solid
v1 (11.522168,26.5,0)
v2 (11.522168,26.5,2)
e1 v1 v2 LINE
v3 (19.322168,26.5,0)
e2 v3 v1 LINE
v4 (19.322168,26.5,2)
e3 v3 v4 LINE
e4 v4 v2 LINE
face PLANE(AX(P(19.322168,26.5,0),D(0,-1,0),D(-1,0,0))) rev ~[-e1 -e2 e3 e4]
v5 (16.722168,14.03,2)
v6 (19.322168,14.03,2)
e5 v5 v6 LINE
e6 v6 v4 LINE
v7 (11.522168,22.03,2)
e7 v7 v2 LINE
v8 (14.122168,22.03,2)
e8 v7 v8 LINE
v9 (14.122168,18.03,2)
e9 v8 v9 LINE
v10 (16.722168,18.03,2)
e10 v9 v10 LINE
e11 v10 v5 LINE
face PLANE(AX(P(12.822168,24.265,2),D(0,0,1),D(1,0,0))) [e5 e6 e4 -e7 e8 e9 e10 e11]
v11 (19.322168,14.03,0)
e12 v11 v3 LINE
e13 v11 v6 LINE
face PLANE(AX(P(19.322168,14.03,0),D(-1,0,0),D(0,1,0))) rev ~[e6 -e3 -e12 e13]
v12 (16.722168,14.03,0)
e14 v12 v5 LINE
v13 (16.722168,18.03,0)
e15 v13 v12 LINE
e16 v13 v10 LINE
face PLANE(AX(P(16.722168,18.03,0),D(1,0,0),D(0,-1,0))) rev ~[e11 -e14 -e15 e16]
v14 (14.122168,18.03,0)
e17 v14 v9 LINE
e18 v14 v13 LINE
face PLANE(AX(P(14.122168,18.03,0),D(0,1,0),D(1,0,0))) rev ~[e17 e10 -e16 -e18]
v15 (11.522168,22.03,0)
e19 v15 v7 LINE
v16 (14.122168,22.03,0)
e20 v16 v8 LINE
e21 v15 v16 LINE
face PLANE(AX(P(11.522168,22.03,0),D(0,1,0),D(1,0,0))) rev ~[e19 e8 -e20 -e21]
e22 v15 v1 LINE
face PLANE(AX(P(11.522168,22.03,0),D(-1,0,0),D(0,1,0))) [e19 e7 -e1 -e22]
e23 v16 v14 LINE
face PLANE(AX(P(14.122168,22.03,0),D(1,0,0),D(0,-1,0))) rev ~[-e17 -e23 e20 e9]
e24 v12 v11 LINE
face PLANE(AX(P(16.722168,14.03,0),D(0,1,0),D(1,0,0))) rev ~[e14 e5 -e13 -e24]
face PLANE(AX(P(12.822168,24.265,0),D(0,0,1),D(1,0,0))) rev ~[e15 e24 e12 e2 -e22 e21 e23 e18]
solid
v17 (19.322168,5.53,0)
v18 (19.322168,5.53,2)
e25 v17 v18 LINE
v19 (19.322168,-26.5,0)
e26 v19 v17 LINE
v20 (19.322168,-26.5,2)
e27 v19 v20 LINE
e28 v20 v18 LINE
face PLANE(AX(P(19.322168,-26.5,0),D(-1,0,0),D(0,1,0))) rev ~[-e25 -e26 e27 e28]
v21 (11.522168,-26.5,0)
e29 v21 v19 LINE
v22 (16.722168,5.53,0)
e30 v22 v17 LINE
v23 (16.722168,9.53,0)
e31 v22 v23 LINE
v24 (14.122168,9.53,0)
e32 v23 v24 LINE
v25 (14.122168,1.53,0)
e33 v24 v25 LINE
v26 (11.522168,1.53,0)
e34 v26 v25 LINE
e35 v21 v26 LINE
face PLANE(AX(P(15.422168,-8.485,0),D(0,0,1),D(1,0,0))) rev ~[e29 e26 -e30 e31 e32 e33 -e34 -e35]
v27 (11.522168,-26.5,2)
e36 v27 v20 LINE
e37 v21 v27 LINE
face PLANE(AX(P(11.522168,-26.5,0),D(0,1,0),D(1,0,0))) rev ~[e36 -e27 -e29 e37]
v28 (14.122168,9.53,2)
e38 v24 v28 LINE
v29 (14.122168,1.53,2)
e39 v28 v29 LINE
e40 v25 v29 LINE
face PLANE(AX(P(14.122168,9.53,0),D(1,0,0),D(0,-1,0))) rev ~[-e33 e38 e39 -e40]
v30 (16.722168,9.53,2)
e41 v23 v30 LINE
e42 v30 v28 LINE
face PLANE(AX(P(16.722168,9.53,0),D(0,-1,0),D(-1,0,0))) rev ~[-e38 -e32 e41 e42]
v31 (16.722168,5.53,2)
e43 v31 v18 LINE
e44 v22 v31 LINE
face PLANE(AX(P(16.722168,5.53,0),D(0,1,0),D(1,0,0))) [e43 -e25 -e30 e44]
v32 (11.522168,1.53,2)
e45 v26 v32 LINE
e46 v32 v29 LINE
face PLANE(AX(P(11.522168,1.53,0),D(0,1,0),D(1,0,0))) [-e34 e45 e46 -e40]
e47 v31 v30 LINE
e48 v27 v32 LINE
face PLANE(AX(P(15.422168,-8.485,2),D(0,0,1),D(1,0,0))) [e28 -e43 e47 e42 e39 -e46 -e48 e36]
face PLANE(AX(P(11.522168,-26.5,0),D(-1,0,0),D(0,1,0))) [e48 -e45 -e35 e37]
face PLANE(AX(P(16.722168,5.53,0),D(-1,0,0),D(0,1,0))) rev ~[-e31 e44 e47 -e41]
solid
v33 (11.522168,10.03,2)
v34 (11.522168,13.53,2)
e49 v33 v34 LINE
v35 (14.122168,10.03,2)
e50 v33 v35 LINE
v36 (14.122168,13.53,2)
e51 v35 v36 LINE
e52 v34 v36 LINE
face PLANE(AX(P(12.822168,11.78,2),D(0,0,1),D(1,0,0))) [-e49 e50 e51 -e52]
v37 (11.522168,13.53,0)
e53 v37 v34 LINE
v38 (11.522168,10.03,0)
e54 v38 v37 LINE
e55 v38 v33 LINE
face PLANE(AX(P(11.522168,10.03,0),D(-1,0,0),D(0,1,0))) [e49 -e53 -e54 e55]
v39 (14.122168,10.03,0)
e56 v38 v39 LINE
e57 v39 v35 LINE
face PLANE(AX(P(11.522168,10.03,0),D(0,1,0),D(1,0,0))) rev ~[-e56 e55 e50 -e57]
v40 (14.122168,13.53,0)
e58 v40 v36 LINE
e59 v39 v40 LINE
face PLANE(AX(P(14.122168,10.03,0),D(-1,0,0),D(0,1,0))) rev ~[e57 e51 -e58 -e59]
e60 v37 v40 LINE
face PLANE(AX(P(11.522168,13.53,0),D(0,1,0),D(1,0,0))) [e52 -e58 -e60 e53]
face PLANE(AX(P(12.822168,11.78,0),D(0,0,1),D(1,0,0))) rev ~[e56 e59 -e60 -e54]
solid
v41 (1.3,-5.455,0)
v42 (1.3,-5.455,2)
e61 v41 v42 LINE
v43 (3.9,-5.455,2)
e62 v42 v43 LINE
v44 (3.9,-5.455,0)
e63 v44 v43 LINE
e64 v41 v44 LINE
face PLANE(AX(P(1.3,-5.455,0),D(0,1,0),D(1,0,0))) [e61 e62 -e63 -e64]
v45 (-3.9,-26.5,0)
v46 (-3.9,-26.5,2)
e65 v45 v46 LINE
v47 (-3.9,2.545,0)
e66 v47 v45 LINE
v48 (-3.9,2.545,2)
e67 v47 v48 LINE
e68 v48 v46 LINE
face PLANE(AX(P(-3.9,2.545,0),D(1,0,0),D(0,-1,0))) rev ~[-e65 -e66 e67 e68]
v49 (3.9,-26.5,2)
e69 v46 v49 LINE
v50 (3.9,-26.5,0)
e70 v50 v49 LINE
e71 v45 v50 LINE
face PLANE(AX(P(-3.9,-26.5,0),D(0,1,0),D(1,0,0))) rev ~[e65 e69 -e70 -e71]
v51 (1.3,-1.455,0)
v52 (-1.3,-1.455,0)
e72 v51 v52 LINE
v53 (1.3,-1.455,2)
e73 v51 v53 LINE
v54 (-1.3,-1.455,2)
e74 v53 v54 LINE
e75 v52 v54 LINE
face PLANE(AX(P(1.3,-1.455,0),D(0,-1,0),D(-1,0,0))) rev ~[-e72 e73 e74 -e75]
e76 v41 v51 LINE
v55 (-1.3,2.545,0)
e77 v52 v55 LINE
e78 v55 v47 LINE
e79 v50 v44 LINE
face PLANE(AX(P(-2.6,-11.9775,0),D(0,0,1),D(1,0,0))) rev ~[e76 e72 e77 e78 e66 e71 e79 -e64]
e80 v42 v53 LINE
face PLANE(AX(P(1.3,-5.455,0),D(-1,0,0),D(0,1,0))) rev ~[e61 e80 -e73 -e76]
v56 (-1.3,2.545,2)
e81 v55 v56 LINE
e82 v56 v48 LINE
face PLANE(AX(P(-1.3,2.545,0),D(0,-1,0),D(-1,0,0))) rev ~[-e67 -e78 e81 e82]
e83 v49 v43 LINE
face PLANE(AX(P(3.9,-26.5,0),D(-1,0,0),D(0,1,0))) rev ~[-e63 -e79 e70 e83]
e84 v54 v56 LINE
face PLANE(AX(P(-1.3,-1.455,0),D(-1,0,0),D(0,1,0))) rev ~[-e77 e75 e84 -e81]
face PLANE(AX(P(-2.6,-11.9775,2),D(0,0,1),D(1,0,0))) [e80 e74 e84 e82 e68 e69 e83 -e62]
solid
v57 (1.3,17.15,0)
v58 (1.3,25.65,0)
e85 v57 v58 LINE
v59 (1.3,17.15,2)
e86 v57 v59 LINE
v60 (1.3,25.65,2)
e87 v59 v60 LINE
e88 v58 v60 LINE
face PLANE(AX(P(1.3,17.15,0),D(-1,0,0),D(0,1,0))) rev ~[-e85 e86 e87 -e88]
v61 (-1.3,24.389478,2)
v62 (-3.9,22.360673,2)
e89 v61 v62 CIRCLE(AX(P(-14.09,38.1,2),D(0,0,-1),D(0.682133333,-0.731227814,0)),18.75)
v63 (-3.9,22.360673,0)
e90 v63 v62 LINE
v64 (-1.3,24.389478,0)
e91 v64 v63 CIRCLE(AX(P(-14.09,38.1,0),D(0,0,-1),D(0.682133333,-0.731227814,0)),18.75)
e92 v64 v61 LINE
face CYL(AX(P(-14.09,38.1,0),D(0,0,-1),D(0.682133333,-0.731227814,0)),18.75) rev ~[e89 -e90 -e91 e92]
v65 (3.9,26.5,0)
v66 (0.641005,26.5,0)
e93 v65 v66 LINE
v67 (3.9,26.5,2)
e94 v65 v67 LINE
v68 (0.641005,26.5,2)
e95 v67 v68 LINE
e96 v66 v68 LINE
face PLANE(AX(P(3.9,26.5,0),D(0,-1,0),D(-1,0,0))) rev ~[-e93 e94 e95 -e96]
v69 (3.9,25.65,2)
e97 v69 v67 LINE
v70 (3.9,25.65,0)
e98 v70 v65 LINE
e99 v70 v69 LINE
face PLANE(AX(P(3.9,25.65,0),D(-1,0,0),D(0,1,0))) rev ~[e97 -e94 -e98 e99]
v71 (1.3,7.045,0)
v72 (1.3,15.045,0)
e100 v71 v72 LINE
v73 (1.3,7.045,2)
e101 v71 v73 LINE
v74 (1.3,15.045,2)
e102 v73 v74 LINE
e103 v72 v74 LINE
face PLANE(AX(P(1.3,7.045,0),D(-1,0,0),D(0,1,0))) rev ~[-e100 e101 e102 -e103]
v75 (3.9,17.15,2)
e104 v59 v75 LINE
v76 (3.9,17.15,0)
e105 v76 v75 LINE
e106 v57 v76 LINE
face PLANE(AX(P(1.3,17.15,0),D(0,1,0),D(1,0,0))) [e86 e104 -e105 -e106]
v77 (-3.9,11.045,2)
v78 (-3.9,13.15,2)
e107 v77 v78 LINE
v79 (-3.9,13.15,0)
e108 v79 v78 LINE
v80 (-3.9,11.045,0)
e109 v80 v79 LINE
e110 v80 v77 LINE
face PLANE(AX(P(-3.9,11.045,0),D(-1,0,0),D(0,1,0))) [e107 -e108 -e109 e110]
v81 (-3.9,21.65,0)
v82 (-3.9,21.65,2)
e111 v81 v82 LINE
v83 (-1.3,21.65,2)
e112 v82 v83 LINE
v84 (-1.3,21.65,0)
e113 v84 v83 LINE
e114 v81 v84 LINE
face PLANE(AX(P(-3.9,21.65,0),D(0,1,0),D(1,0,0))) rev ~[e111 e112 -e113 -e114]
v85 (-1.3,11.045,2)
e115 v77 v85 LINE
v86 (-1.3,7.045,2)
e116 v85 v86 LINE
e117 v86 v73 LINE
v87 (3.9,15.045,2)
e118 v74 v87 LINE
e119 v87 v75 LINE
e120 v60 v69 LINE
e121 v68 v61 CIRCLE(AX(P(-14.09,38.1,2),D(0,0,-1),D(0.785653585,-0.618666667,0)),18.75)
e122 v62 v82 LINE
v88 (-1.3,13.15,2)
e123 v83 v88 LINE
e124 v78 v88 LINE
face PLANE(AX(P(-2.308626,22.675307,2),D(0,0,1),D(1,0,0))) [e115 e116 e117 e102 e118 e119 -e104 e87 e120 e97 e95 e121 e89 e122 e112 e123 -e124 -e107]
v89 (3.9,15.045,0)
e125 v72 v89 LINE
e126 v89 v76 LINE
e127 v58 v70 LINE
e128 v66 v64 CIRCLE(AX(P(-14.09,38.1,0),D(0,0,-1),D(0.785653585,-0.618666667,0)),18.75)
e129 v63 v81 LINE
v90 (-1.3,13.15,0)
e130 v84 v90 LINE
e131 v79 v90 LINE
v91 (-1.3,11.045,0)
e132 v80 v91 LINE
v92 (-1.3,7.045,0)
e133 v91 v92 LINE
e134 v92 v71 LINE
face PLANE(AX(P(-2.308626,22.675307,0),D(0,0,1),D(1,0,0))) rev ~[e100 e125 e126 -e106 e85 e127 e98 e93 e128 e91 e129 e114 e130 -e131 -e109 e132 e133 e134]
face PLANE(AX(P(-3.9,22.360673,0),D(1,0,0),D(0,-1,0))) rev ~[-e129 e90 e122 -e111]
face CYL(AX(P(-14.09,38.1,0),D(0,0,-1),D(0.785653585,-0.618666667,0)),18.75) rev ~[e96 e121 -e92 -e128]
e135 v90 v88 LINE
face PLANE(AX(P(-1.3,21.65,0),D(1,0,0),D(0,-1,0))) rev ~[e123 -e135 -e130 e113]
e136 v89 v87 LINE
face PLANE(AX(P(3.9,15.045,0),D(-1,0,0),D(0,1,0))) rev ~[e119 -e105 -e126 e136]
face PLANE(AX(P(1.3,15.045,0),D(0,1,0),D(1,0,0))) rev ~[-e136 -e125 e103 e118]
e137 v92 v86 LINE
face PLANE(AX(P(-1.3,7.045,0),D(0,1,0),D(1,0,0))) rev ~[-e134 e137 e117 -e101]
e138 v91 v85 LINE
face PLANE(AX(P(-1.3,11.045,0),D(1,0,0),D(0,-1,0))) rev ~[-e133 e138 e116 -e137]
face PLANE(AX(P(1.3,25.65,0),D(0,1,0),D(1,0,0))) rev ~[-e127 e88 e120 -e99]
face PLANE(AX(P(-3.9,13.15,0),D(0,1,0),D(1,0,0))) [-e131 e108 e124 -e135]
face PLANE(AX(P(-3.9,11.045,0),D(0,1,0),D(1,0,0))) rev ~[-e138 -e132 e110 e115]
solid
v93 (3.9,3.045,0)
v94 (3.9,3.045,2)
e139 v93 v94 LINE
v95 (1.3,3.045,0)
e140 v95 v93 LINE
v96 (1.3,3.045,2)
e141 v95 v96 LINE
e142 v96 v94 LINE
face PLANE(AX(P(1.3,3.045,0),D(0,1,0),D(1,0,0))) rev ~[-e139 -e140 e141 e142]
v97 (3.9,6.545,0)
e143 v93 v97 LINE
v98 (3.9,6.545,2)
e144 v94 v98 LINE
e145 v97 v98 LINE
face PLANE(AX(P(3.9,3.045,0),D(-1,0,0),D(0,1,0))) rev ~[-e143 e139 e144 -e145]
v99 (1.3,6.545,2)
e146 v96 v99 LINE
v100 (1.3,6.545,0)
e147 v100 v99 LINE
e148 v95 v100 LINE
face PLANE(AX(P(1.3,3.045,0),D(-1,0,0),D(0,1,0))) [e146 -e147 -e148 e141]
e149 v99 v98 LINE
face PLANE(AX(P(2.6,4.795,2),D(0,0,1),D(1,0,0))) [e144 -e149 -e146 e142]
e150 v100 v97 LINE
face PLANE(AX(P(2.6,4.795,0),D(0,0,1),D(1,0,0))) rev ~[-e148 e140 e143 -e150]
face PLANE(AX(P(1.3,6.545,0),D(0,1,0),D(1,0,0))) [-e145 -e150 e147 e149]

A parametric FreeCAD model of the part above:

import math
import FreeCAD as App
import Part
import Sketcher


def add_polygon(sketch, points):
    """Adds a closed chain of lines whose ends are joined by coincident constraints."""
    first, n = sketch.GeometryCount, len(points)
    for a, b in zip(points, points[1:] + points[:1]):
        sketch.addGeometry(Part.LineSegment(App.Vector(*a, 0), App.Vector(*b, 0)), False)
    for i in range(n):
        sketch.addConstraint(Sketcher.Constraint("Coincident", first + i, 2, first + (i + 1) % n, 1))

doc = App.newDocument("Part")
body = doc.addObject("PartDesign::Body", "Body")

sketch1 = body.newObject("Sketcher::SketchObject", "Sketch")
sketch1.AttachmentSupport = (doc.getObject("XY_Plane"), [""])
sketch1.MapMode = "FlatFace"
sketch1.addGeometry([
    Part.ArcOfCircle(Part.Circle(App.Vector(-14.09, 38.1, 0), App.Vector(0, 0, 1), 18.75), math.radians(-57.080057), math.radians(-46.989425)),
    Part.LineSegment(App.Vector(-3.9, 22.360673, 0), App.Vector(-3.9, 21.65, 0)),
    Part.LineSegment(App.Vector(-3.9, 21.65, 0), App.Vector(-1.3, 21.65, 0)),
    Part.LineSegment(App.Vector(-1.3, 21.65, 0), App.Vector(-1.3, 13.15, 0)),
    Part.LineSegment(App.Vector(-1.3, 13.15, 0), App.Vector(-3.9, 13.15, 0)),
    Part.LineSegment(App.Vector(-3.9, 13.15, 0), App.Vector(-3.9, 11.045, 0)),
    Part.LineSegment(App.Vector(-3.9, 11.045, 0), App.Vector(-1.3, 11.045, 0)),
    Part.LineSegment(App.Vector(-1.3, 11.045, 0), App.Vector(-1.3, 7.045, 0)),
    Part.LineSegment(App.Vector(-1.3, 7.045, 0), App.Vector(1.3, 7.045, 0)),
    Part.LineSegment(App.Vector(1.3, 7.045, 0), App.Vector(1.3, 15.045, 0)),
    Part.LineSegment(App.Vector(1.3, 15.045, 0), App.Vector(3.9, 15.045, 0)),
    Part.LineSegment(App.Vector(3.9, 15.045, 0), App.Vector(3.9, 17.15, 0)),
    Part.LineSegment(App.Vector(3.9, 17.15, 0), App.Vector(1.3, 17.15, 0)),
    Part.LineSegment(App.Vector(1.3, 17.15, 0), App.Vector(1.3, 25.65, 0)),
    Part.LineSegment(App.Vector(1.3, 25.65, 0), App.Vector(3.9, 25.65, 0)),
    Part.LineSegment(App.Vector(3.9, 25.65, 0), App.Vector(3.9, 26.5, 0)),
    Part.LineSegment(App.Vector(3.9, 26.5, 0), App.Vector(0.641005, 26.5, 0)),
    Part.ArcOfCircle(Part.Circle(App.Vector(-14.09, 38.1, 0), App.Vector(0, 0, 1), 18.75), math.radians(-46.989425), math.radians(-38.218833)),
], False)
sketch1.addConstraint([
    Sketcher.Constraint("Coincident", 0, 1, 1, 1),
    Sketcher.Constraint("Coincident", 1, 2, 2, 1),
    Sketcher.Constraint("Coincident", 2, 2, 3, 1),
    Sketcher.Constraint("Coincident", 3, 2, 4, 1),
    Sketcher.Constraint("Coincident", 4, 2, 5, 1),
    Sketcher.Constraint("Coincident", 5, 2, 6, 1),
    Sketcher.Constraint("Coincident", 6, 2, 7, 1),
    Sketcher.Constraint("Coincident", 7, 2, 8, 1),
    Sketcher.Constraint("Coincident", 8, 2, 9, 1),
    Sketcher.Constraint("Coincident", 9, 2, 10, 1),
    Sketcher.Constraint("Coincident", 10, 2, 11, 1),
    Sketcher.Constraint("Coincident", 11, 2, 12, 1),
    Sketcher.Constraint("Coincident", 12, 2, 13, 1),
    Sketcher.Constraint("Coincident", 13, 2, 14, 1),
    Sketcher.Constraint("Coincident", 14, 2, 15, 1),
    Sketcher.Constraint("Coincident", 15, 2, 16, 1),
    Sketcher.Constraint("Coincident", 16, 2, 17, 2),
    Sketcher.Constraint("Tangent", 17, 1, 0, 2),
    Sketcher.Constraint("Vertical", 1),
    Sketcher.Constraint("Horizontal", 2),
    Sketcher.Constraint("Vertical", 3),
    Sketcher.Constraint("Horizontal", 4),
    Sketcher.Constraint("Vertical", 5),
    Sketcher.Constraint("Horizontal", 6),
    Sketcher.Constraint("Vertical", 7),
    Sketcher.Constraint("Horizontal", 8),
    Sketcher.Constraint("Vertical", 9),
    Sketcher.Constraint("Horizontal", 10),
    Sketcher.Constraint("Vertical", 11),
    Sketcher.Constraint("Horizontal", 12),
    Sketcher.Constraint("Vertical", 13),
    Sketcher.Constraint("Horizontal", 14),
    Sketcher.Constraint("Vertical", 15),
    Sketcher.Constraint("Horizontal", 16),
    Sketcher.Constraint("Equal", 0, 17),
    Sketcher.Constraint("Vertical", 1, 2, 4, 2),
    Sketcher.Constraint("Vertical", 3, 2, 6, 2),
    Sketcher.Constraint("Vertical", 9, 2, 12, 2),
    Sketcher.Constraint("Vertical", 11, 2, 14, 2),
    Sketcher.Constraint("Vertical", 7, 2, 17, 1),
    Sketcher.Constraint("Equal", 6, 8),
    Sketcher.Constraint("Equal", 8, 10),
    Sketcher.Constraint("Equal", 5, 11),
    Sketcher.Constraint("Equal", 3, 13),
    Sketcher.Constraint("DistanceY", 7, 2, 7, 1, 4.0),
    Sketcher.Constraint("DistanceY", 9, 1, 9, 2, 8.0),
    Sketcher.Constraint("Radius", 0, 18.75),
    Sketcher.Constraint("DistanceX", 2, 1, 2, 2, 2.6),
    Sketcher.Constraint("DistanceY", 3, 2, 3, 1, 8.5),
    Sketcher.Constraint("DistanceY", 15, 1, 15, 2, 0.85),
    Sketcher.Constraint("DistanceY", -1, 1, 0, 3, 38.1),
    Sketcher.Constraint("DistanceX", 0, 1, -1, 1, 3.9),
    Sketcher.Constraint("DistanceY", -1, 1, 15, 2, 26.5),
    Sketcher.Constraint("DistanceY", 5, 2, 5, 1, 2.105),
    Sketcher.Constraint("DistanceX", 0, 3, -1, 1, 14.09),
])
pad1 = body.newObject("PartDesign::Pad", "Pad")
pad1.Profile = sketch1
pad1.Length = 2
body2 = doc.addObject("PartDesign::Body", "Body001")

sketch2 = body2.newObject("Sketcher::SketchObject", "Sketch001")
sketch2.AttachmentSupport = (doc.getObject("XY_Plane001"), [""])
sketch2.MapMode = "FlatFace"
add_polygon(sketch2, [(1.3, 6.545), (1.3, 3.045), (3.9, 3.045), (3.9, 6.545)])
sketch2.addConstraint([
    Sketcher.Constraint("Vertical", 0),
    Sketcher.Constraint("Horizontal", 1),
    Sketcher.Constraint("Vertical", 2),
    Sketcher.Constraint("Horizontal", 3),
    Sketcher.Constraint("DistanceX", 1, 1, 1, 2, 2.6),
    Sketcher.Constraint("DistanceY", 0, 2, 0, 1, 3.5),
    Sketcher.Constraint("DistanceX", -1, 1, 0, 2, 1.3),
    Sketcher.Constraint("DistanceY", -1, 1, 0, 2, 3.045),
])
pad2 = body2.newObject("PartDesign::Pad", "Pad001")
pad2.Profile = sketch2
pad2.Length = 2
body3 = doc.addObject("PartDesign::Body", "Body002")

sketch3 = body3.newObject("Sketcher::SketchObject", "Sketch002")
sketch3.AttachmentSupport = (doc.getObject("XY_Plane002"), [""])
sketch3.MapMode = "FlatFace"
add_polygon(sketch3, [(-1.3, 2.545), (-3.9, 2.545), (-3.9, -26.5), (3.9, -26.5), (3.9, -5.455), (1.3, -5.455), (1.3, -1.455), (-1.3, -1.455)])
sketch3.addConstraint([
    Sketcher.Constraint("Horizontal", 0),
    Sketcher.Constraint("Vertical", 1),
    Sketcher.Constraint("Horizontal", 2),
    Sketcher.Constraint("Vertical", 3),
    Sketcher.Constraint("Horizontal", 4),
    Sketcher.Constraint("Vertical", 5),
    Sketcher.Constraint("Horizontal", 6),
    Sketcher.Constraint("Vertical", 7),
    Sketcher.Constraint("Equal", 0, 4),
    Sketcher.Constraint("Equal", 4, 6),
    Sketcher.Constraint("Equal", 5, 7),
    Sketcher.Constraint("DistanceY", 5, 1, 5, 2, 4.0),
    Sketcher.Constraint("DistanceX", 0, 2, 0, 1, 2.6),
    Sketcher.Constraint("DistanceX", 0, 2, -1, 1, 3.9),
    Sketcher.Constraint("DistanceY", 1, 2, -1, 1, 26.5),
    Sketcher.Constraint("DistanceY", 1, 2, 1, 1, 29.045),
])
pad3 = body3.newObject("PartDesign::Pad", "Pad002")
pad3.Profile = sketch3
pad3.Length = 2
body4 = doc.addObject("PartDesign::Body", "Body003")

sketch4 = body4.newObject("Sketcher::SketchObject", "Sketch003")
sketch4.AttachmentSupport = (doc.getObject("XY_Plane003"), [""])
sketch4.MapMode = "FlatFace"
add_polygon(sketch4, [(11.522168, 26.5), (11.522168, 22.03), (14.122168, 22.03), (14.122168, 18.03), (16.722168, 18.03), (16.722168, 14.03), (19.322168, 14.03), (19.322168, 26.5)])
sketch4.addConstraint([
    Sketcher.Constraint("Vertical", 0),
    Sketcher.Constraint("Horizontal", 1),
    Sketcher.Constraint("Vertical", 2),
    Sketcher.Constraint("Horizontal", 3),
    Sketcher.Constraint("Vertical", 4),
    Sketcher.Constraint("Horizontal", 5),
    Sketcher.Constraint("Vertical", 6),
    Sketcher.Constraint("Horizontal", 7),
    Sketcher.Constraint("Equal", 1, 3),
    Sketcher.Constraint("Equal", 3, 5),
    Sketcher.Constraint("Equal", 2, 4),
    Sketcher.Constraint("DistanceY", 2, 2, 2, 1, 4.0),
    Sketcher.Constraint("DistanceX", 1, 1, 1, 2, 2.6),
    Sketcher.Constraint("DistanceY", 0, 2, 0, 1, 4.47),
    Sketcher.Constraint("DistanceY", -1, 1, 6, 2, 26.5),
    Sketcher.Constraint("DistanceX", -1, 1, 0, 2, 11.522168),
])
pad4 = body4.newObject("PartDesign::Pad", "Pad003")
pad4.Profile = sketch4
pad4.Length = 2
body5 = doc.addObject("PartDesign::Body", "Body004")

sketch5 = body5.newObject("Sketcher::SketchObject", "Sketch004")
sketch5.AttachmentSupport = (doc.getObject("XY_Plane004"), [""])
sketch5.MapMode = "FlatFace"
add_polygon(sketch5, [(11.522168, 13.53), (11.522168, 10.03), (14.122168, 10.03), (14.122168, 13.53)])
sketch5.addConstraint([
    Sketcher.Constraint("Vertical", 0),
    Sketcher.Constraint("Horizontal", 1),
    Sketcher.Constraint("Vertical", 2),
    Sketcher.Constraint("Horizontal", 3),
    Sketcher.Constraint("DistanceX", 1, 1, 1, 2, 2.6),
    Sketcher.Constraint("DistanceY", 0, 2, 0, 1, 3.5),
    Sketcher.Constraint("DistanceY", -1, 1, 0, 2, 10.03),
    Sketcher.Constraint("DistanceX", -1, 1, 0, 2, 11.522168),
])
pad5 = body5.newObject("PartDesign::Pad", "Pad004")
pad5.Profile = sketch5
pad5.Length = 2
body6 = doc.addObject("PartDesign::Body", "Body005")

sketch6 = body6.newObject("Sketcher::SketchObject", "Sketch005")
sketch6.AttachmentSupport = (doc.getObject("XY_Plane005"), [""])
sketch6.MapMode = "FlatFace"
add_polygon(sketch6, [(19.322168, -26.5), (19.322168, 5.53), (16.722168, 5.53), (16.722168, 9.53), (14.122168, 9.53), (14.122168, 1.53), (11.522168, 1.53), (11.522168, -26.5)])
sketch6.addConstraint([
    Sketcher.Constraint("Vertical", 0),
    Sketcher.Constraint("Horizontal", 1),
    Sketcher.Constraint("Vertical", 2),
    Sketcher.Constraint("Horizontal", 3),
    Sketcher.Constraint("Vertical", 4),
    Sketcher.Constraint("Horizontal", 5),
    Sketcher.Constraint("Vertical", 6),
    Sketcher.Constraint("Horizontal", 7),
    Sketcher.Constraint("Equal", 1, 3),
    Sketcher.Constraint("Equal", 3, 5),
    Sketcher.Constraint("DistanceY", 2, 1, 2, 2, 4.0),
    Sketcher.Constraint("DistanceY", 4, 2, 4, 1, 8.0),
    Sketcher.Constraint("DistanceX", 1, 2, 1, 1, 2.6),
    Sketcher.Constraint("DistanceY", 0, 1, 0, 2, 32.03),
    Sketcher.Constraint("DistanceY", 6, 2, -1, 1, 26.5),
    Sketcher.Constraint("DistanceX", -1, 1, 0, 2, 19.322168),
])
pad6 = body6.newObject("PartDesign::Pad", "Pad005")
pad6.Profile = sketch6
pad6.Length = 2

doc.recompute()
